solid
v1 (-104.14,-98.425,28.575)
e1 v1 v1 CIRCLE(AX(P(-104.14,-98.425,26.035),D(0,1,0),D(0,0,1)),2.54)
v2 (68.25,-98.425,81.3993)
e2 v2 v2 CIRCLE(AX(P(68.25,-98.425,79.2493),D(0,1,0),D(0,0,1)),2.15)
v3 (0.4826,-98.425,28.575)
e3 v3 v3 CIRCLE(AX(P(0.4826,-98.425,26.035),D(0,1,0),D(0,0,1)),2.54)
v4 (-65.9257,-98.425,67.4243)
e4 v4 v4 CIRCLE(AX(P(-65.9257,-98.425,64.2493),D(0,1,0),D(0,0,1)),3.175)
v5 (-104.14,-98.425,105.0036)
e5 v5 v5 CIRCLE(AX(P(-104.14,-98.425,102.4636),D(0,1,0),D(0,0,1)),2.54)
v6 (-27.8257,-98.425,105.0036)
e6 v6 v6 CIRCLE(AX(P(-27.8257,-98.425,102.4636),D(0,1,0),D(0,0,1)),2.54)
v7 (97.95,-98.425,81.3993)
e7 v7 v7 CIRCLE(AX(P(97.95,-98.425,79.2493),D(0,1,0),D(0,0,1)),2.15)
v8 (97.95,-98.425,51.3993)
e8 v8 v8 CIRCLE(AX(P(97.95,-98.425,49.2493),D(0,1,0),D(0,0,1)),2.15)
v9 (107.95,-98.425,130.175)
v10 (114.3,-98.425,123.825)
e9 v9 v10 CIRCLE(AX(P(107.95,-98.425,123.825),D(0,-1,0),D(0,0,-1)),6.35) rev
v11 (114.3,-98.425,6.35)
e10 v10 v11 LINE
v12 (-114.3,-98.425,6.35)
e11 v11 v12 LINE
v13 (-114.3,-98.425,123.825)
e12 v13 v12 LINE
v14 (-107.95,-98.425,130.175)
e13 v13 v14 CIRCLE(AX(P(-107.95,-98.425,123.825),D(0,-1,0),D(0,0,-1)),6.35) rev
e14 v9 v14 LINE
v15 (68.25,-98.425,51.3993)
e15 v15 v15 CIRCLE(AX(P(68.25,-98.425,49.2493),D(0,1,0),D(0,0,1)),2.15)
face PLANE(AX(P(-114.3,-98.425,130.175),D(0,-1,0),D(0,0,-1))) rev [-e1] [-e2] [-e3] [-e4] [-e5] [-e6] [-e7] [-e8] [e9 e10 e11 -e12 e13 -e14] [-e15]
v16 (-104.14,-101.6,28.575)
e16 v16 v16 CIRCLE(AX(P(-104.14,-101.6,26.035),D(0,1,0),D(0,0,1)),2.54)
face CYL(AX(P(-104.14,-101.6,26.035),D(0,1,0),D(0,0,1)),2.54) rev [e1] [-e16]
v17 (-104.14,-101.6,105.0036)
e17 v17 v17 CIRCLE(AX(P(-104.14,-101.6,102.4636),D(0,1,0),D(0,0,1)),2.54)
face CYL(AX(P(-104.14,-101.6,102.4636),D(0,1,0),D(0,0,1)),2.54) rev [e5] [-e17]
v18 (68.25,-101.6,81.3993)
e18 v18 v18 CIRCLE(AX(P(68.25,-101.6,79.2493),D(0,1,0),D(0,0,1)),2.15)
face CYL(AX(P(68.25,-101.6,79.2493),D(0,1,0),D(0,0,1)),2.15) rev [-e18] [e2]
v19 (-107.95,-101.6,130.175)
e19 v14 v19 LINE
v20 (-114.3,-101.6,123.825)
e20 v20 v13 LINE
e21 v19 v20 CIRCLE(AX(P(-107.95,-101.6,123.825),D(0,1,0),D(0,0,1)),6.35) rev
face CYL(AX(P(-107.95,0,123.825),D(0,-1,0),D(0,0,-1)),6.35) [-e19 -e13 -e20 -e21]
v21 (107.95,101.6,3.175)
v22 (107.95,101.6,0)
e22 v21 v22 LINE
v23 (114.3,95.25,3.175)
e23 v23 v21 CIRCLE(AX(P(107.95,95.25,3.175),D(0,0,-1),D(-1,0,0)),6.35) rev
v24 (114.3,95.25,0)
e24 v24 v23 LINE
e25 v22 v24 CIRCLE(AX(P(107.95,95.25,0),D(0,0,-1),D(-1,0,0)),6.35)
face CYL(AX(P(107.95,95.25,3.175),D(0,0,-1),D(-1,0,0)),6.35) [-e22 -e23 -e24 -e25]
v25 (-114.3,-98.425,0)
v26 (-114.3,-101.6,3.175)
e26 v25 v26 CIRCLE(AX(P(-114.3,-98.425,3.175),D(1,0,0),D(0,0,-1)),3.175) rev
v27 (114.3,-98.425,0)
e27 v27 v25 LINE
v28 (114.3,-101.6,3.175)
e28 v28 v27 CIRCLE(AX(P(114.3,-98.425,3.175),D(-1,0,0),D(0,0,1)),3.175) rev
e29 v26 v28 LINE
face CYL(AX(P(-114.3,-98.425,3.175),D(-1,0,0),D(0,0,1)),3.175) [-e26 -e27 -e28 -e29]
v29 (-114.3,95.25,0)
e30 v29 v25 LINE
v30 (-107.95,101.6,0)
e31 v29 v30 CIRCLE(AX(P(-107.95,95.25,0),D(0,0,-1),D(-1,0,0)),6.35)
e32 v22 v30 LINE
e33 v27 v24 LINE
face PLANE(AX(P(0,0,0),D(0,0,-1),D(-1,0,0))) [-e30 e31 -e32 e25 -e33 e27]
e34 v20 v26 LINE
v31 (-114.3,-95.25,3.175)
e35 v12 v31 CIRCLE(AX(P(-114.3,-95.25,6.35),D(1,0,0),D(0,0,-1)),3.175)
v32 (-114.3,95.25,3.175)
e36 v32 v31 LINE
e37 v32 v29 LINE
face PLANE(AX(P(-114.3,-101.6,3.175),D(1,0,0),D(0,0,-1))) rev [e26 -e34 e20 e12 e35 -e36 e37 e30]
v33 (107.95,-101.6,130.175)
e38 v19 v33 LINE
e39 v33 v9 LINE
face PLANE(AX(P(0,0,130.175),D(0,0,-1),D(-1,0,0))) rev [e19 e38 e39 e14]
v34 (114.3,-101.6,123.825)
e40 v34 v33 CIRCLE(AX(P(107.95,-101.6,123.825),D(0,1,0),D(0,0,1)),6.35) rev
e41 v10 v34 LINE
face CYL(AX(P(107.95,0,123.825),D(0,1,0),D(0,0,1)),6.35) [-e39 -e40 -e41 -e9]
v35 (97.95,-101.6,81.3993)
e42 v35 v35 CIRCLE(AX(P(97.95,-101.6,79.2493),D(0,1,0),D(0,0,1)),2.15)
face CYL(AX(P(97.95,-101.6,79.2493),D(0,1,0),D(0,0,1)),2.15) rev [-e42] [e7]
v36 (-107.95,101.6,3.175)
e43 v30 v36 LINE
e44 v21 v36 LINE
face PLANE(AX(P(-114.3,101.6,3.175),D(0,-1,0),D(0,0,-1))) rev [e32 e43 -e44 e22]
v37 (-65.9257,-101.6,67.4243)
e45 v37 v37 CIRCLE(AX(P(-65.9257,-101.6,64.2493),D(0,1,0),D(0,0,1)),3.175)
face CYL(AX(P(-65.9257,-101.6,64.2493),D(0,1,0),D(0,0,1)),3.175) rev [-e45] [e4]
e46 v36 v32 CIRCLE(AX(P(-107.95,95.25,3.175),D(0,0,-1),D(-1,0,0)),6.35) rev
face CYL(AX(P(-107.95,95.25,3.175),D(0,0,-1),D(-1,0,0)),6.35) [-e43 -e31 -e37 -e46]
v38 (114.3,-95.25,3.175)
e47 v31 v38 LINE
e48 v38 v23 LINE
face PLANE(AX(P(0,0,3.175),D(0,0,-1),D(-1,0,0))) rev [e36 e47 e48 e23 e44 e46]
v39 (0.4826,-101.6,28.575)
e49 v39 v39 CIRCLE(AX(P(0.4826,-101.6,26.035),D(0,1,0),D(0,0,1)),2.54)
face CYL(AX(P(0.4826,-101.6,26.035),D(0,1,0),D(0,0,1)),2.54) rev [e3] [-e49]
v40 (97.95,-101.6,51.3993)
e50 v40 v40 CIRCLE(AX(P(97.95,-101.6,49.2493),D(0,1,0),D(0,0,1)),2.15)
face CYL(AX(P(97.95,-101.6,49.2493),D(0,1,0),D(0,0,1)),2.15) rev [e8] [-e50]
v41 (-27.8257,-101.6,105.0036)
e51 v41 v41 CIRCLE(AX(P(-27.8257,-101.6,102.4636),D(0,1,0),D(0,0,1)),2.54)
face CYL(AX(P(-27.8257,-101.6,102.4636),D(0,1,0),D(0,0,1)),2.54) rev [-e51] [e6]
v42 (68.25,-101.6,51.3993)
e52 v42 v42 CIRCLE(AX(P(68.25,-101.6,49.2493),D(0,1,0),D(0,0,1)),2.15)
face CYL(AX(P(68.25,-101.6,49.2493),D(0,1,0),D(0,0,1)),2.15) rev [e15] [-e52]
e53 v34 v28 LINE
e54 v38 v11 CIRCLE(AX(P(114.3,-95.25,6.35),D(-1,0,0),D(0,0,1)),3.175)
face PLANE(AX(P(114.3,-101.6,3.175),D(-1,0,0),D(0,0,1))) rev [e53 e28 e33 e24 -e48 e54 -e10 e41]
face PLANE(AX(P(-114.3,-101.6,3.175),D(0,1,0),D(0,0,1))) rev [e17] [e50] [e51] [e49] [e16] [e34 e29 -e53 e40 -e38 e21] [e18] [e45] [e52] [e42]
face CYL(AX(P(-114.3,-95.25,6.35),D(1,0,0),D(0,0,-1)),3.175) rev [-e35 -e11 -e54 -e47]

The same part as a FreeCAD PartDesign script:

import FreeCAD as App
import Part
import Sketcher
from FreeCAD import Vector
Q = App.Units.Quantity


def edges_at(feature, points):
    """Names of the edges that pass closest to the given points."""
    edges = feature.Shape.Edges
    near = lambda p: min(range(len(edges)), key=lambda i: edges[i].distToShape(Part.Vertex(*p))[0])
    return sorted({f"Edge{near(p) + 1}" for p in points})


def add_polygon(sketch, points):
    """Adds a closed chain of lines whose ends are joined by coincident constraints."""
    first, n = sketch.GeometryCount, len(points)
    for a, b in zip(points, points[1:] + points[:1]):
        sketch.addGeometry(Part.LineSegment(App.Vector(*a, 0), App.Vector(*b, 0)), False)
    for i in range(n):
        sketch.addConstraint(Sketcher.Constraint("Coincident", first + i, 2, first + (i + 1) % n, 1))

doc = App.newDocument("Part")
body = doc.addObject("PartDesign::Body", "Body")

sketch1 = body.newObject("Sketcher::SketchObject", "Sketch")
sketch1.AttachmentSupport = (doc.getObject("XY_Plane"), [""])
sketch1.MapMode = "FlatFace"
add_polygon(sketch1, [(-114, 102), (-114, -102), (114, -102), (114, 102)])
sketch1.addConstraint(Sketcher.Constraint("Vertical", 0))
sketch1.addConstraint(Sketcher.Constraint("Horizontal", 1))
sketch1.addConstraint(Sketcher.Constraint("Vertical", 2))
sketch1.addConstraint(Sketcher.Constraint("Horizontal", 3))
sketch1.addConstraint(Sketcher.Constraint("Symmetric", 0, 2, 2, 2, -1, 1))
sketch1.addConstraint(Sketcher.Constraint("DistanceX", 1, 1, 1, 2, Q("9 in")))
sketch1.addConstraint(Sketcher.Constraint("DistanceY", 0, 2, 0, 1, Q("8 in")))
pad1 = body.newObject("PartDesign::Pad", "Pad")
pad1.Profile = sketch1
pad1.Length = Q("0.125 in")

sketch2 = body.newObject("Sketcher::SketchObject", "Sketch001")
sketch2.AttachmentSupport = (doc.getObject("XY_Plane"), [""])
sketch2.MapMode = "FlatFace"
sketch2.AttachmentOffset = App.Placement(Vector(0, 0, 0.125 * 25.4), App.Rotation())
add_polygon(sketch2, [(-114.3, -98.4), (-114.3, -101.6), (114.3, -101.6), (114.3, -98.4)])
sketch2.addConstraint(Sketcher.Constraint("Vertical", 0))
sketch2.addConstraint(Sketcher.Constraint("Horizontal", 1))
sketch2.addConstraint(Sketcher.Constraint("Vertical", 2))
sketch2.addConstraint(Sketcher.Constraint("Horizontal", 3))
sketch2.addConstraint(Sketcher.Constraint("DistanceX", 1, 1, 1, 2, Q("9 in")))
sketch2.addConstraint(Sketcher.Constraint("DistanceY", 0, 2, -1, 1, Q("4 in")))
sketch2.addConstraint(Sketcher.Constraint("DistanceX", 0, 2, -1, 1, Q("4.5 in")))
sketch2.addConstraint(Sketcher.Constraint("DistanceY", 0, 2, 0, 1, Q("0.125 in")))
pad2 = body.newObject("PartDesign::Pad", "Pad001")
pad2.Profile = sketch2
pad2.Length = Q("5 in")
doc.recompute()

fillet = body.newObject("PartDesign::Fillet", "Fillet")
fillet.Base = (pad2, edges_at(pad2, [(0, -98.425, 3.175), (0, -101.6, 0)]))
fillet.Radius = Q("0.125 in")
doc.recompute()

fillet2 = body.newObject("PartDesign::Fillet", "Fillet001")
fillet2.Base = (fillet, edges_at(fillet, [
    (-114.3, -100.013, 130.175),
    (114.3, -100.013, 130.175),
    (-114.3, 101.6, 1.587),
    (114.3, 101.6, 1.587),
]))
fillet2.Radius = Q("0.25 in")

sketch3 = body.newObject("Sketcher::SketchObject", "Sketch002")
sketch3.AttachmentSupport = (doc.getObject("XZ_Plane"), [""])
sketch3.MapMode = "FlatFace"
sketch3.AttachmentOffset = App.Placement(Vector(0, 0, 3.875 * 25.4), App.Rotation())
sketch3.addGeometry(Part.Circle(Vector(-104.1, 26, 0), Vector(0, 0, 1), 2.5), False)
sketch3.addGeometry(Part.Circle(Vector(-104.1, 102.5, 0), Vector(0, 0, 1), 2.5), False)
sketch3.addGeometry(Part.Circle(Vector(0.5, 26, 0), Vector(0, 0, 1), 2.5), False)
sketch3.addGeometry(Part.Circle(Vector(-27.8, 102.5, 0), Vector(0, 0, 1), 2.5), False)
sketch3.addGeometry(Part.Circle(Vector(68.2, 79.2, 0), Vector(0, 0, 1), 2.1), False)
sketch3.addGeometry(Part.Circle(Vector(98, 79.2, 0), Vector(0, 0, 1), 2.1), False)
sketch3.addGeometry(Part.Circle(Vector(68.2, 49.2, 0), Vector(0, 0, 1), 2.1), False)
sketch3.addGeometry(Part.Circle(Vector(98, 49.2, 0), Vector(0, 0, 1), 2.1), False)
sketch3.addGeometry(Part.Circle(Vector(-65.9, 64.2, 0), Vector(0, 0, 1), 3.2), False)
sketch3.addConstraint(Sketcher.Constraint("Equal", 0, 1))
sketch3.addConstraint(Sketcher.Constraint("Equal", 1, 2))
sketch3.addConstraint(Sketcher.Constraint("Equal", 2, 3))
sketch3.addConstraint(Sketcher.Constraint("Equal", 4, 5))
sketch3.addConstraint(Sketcher.Constraint("Equal", 5, 6))
sketch3.addConstraint(Sketcher.Constraint("Equal", 6, 7))
sketch3.addConstraint(Sketcher.Constraint("Horizontal", 0, 3, 2, 3))
sketch3.addConstraint(Sketcher.Constraint("Horizontal", 1, 3, 3, 3))
sketch3.addConstraint(Sketcher.Constraint("Horizontal", 4, 3, 5, 3))
sketch3.addConstraint(Sketcher.Constraint("Horizontal", 6, 3, 7, 3))
sketch3.addConstraint(Sketcher.Constraint("Vertical", 0, 3, 1, 3))
sketch3.addConstraint(Sketcher.Constraint("Vertical", 4, 3, 6, 3))
sketch3.addConstraint(Sketcher.Constraint("Vertical", 5, 3, 7, 3))
sketch3.addConstraint(Sketcher.Constraint("Diameter", 0, Q("0.2 in")))
sketch3.addConstraint(Sketcher.Constraint("Diameter", 8, Q("0.25 in")))
sketch3.addConstraint(Sketcher.Constraint("DistanceX", 0, 3, -1, 1, Q("4.1 in")))
sketch3.addConstraint(Sketcher.Constraint("DistanceX", 8, 3, 3, 3, Q("1.5 in")))
sketch3.addConstraint(Sketcher.Constraint("Diameter", 4, Q("4.3 mm")))
sketch3.addConstraint(Sketcher.Constraint("DistanceY", -1, 1, 0, 3, Q("1.025 in")))
sketch3.addConstraint(Sketcher.Constraint("DistanceY", -1, 1, 1, 3, Q("4.034 in")))
sketch3.addConstraint(Sketcher.Constraint("DistanceX", -1, 1, 2, 3, Q("0.019 in")))
sketch3.addConstraint(Sketcher.Constraint("DistanceX", 3, 3, -1, 1, Q("1.0955 in")))
sketch3.addConstraint(Sketcher.Constraint("DistanceY", -1, 1, 8, 3, Q("2.5295 in")))
sketch3.addConstraint(Sketcher.Constraint("DistanceX", -1, 1, 4, 3, Q("68.25 mm")))
sketch3.addConstraint(Sketcher.Constraint("DistanceY", -1, 1, 4, 3, Q("79.2493 mm")))
sketch3.addConstraint(Sketcher.Constraint("DistanceX", -1, 1, 5, 3, Q("97.95 mm")))
sketch3.addConstraint(Sketcher.Constraint("DistanceY", -1, 1, 6, 3, Q("49.2493 mm")))
pocket1 = body.newObject("PartDesign::Pocket", "Pocket")
pocket1.Profile = sketch3
pocket1.Type = "ThroughAll"
pocket1.Reversed = True

doc.recompute()
